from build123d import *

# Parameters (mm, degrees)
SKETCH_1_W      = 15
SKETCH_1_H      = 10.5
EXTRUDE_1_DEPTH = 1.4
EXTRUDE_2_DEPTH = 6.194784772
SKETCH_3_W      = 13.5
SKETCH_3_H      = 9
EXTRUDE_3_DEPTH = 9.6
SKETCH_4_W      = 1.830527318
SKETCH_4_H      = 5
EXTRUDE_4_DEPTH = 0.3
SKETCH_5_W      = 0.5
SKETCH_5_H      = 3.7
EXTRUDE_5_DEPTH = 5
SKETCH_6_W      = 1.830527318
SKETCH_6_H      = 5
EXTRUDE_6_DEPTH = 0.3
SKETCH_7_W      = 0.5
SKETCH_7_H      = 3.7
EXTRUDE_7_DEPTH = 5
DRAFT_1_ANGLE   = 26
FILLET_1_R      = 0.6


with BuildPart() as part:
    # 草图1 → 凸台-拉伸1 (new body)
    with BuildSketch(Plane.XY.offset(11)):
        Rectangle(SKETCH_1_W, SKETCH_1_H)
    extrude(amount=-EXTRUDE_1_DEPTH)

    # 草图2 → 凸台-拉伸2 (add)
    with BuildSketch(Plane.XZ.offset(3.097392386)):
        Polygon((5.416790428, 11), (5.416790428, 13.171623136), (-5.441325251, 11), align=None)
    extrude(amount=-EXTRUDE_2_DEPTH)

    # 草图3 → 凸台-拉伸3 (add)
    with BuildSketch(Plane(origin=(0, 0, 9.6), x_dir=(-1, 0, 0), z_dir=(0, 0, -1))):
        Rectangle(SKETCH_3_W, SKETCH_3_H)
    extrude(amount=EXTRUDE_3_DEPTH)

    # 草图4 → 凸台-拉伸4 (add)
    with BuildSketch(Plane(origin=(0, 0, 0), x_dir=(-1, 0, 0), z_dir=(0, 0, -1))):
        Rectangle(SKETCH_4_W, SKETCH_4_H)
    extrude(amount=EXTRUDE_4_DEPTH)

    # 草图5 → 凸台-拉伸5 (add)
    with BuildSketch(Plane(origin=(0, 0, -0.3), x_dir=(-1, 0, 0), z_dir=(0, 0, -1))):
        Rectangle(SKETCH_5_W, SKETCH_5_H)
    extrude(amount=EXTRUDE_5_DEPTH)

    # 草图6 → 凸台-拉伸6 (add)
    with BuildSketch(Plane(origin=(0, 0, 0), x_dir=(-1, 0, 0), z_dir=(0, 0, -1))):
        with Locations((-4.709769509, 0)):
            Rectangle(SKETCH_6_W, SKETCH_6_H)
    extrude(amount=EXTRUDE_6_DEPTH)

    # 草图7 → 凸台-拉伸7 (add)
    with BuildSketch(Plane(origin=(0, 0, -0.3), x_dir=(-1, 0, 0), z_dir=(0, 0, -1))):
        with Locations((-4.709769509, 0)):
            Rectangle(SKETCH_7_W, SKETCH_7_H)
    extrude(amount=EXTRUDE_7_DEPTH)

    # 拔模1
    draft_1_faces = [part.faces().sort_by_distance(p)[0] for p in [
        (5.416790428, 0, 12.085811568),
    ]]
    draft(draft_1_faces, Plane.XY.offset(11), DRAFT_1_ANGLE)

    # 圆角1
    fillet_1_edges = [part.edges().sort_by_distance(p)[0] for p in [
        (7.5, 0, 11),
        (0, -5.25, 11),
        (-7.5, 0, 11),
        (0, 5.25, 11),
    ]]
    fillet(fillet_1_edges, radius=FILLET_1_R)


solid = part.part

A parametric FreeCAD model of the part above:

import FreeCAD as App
import Part
import Sketcher
from FreeCAD import Vector


def edges_at(feature, points):
    """Names of the edges that pass closest to the given points."""
    edges = feature.Shape.Edges
    near = lambda p: min(range(len(edges)), key=lambda i: edges[i].distToShape(Part.Vertex(*p))[0])
    return sorted({f"Edge{near(p) + 1}" for p in points})


def faces_at(feature, points):
    """Names of the faces that lie closest to the given points."""
    faces = feature.Shape.Faces
    near = lambda p: min(range(len(faces)), key=lambda i: faces[i].distToShape(Part.Vertex(*p))[0])
    return sorted({f"Face{near(p) + 1}" for p in points})


def add_polygon(sketch, points):
    """Adds a closed chain of lines whose ends are joined by coincident constraints."""
    first, n = sketch.GeometryCount, len(points)
    for a, b in zip(points, points[1:] + points[:1]):
        sketch.addGeometry(Part.LineSegment(App.Vector(*a, 0), App.Vector(*b, 0)), False)
    for i in range(n):
        sketch.addConstraint(Sketcher.Constraint("Coincident", first + i, 2, first + (i + 1) % n, 1))

doc = App.newDocument("Part")
body = doc.addObject("PartDesign::Body", "Body")

sketch1 = doc.addObject("Sketcher::SketchObject", "Sketch")
body.addObject(sketch1)
sketch1.AttachmentSupport = (doc.XY_Plane, [""])
sketch1.MapMode = "FlatFace"
sketch1.AttachmentOffset = App.Placement(Vector(0, 0, 11), App.Rotation())
add_polygon(sketch1, [(-8, 5), (-8, -5), (8, -5), (8, 5)])
sketch1.addConstraint([
    Sketcher.Constraint("Vertical", 0),
    Sketcher.Constraint("Horizontal", 1),
    Sketcher.Constraint("Vertical", 2),
    Sketcher.Constraint("Horizontal", 3),
    Sketcher.Constraint("Symmetric", 0, 2, 2, 2, -1, 1),
    Sketcher.Constraint("DistanceX", 1, 1, 1, 2, 15.0),
    Sketcher.Constraint("DistanceY", 0, 2, 0, 1, 10.5),
])
pad1 = doc.addObject("PartDesign::Pad", "Pad")
body.addObject(pad1)
pad1.Profile = sketch1
pad1.Length = 1.4
pad1.Reversed = True

sketch2 = doc.addObject("Sketcher::SketchObject", "Sketch001")
body.addObject(sketch2)
sketch2.AttachmentSupport = (doc.XZ_Plane, [""])
sketch2.MapMode = "FlatFace"
sketch2.AttachmentOffset = App.Placement(Vector(0, 0, 3.097392), App.Rotation())
add_polygon(sketch2, [(5.4, 11), (5.4, 13.2), (-5.4, 11)])
sketch2.addConstraint([
    Sketcher.Constraint("Vertical", 0),
    Sketcher.Constraint("Horizontal", 2),
    Sketcher.Constraint("DistanceY", -1, 1, 1, 2, 11.0),
    Sketcher.Constraint("Distance", 1, 11.073149),
    Sketcher.Constraint("DistanceX", 2, 1, 2, 2, 10.858116),
    Sketcher.Constraint("DistanceX", -1, 1, 0, 2, 5.41679),
])
pad2 = doc.addObject("PartDesign::Pad", "Pad001")
body.addObject(pad2)
pad2.Profile = sketch2
pad2.Length = 6.194785
pad2.Reversed = True

sketch3 = doc.addObject("Sketcher::SketchObject", "Sketch002")
body.addObject(sketch3)
sketch3.AttachmentSupport = (doc.XY_Plane, [""])
sketch3.MapMode = "FlatFace"
sketch3.AttachmentOffset = App.Placement(Vector(0, 0, 9.6), App.Rotation())
add_polygon(sketch3, [(7, 4), (7, -4), (-7, -4), (-7, 4)])
sketch3.addConstraint([
    Sketcher.Constraint("Vertical", 0),
    Sketcher.Constraint("Horizontal", 1),
    Sketcher.Constraint("Vertical", 2),
    Sketcher.Constraint("Horizontal", 3),
    Sketcher.Constraint("Symmetric", 0, 2, 2, 2, -1, 1),
    Sketcher.Constraint("DistanceY", 0, 2, 0, 1, 9.0),
    Sketcher.Constraint("DistanceX", 1, 2, 1, 1, 13.5),
])
pad3 = doc.addObject("PartDesign::Pad", "Pad002")
body.addObject(pad3)
pad3.Profile = sketch3
pad3.Length = 9.6
pad3.Reversed = True

sketch4 = doc.addObject("Sketcher::SketchObject", "Sketch003")
body.addObject(sketch4)
sketch4.AttachmentSupport = (doc.XY_Plane, [""])
sketch4.MapMode = "FlatFace"
add_polygon(sketch4, [(0.9, 2.5), (0.9, -2.5), (-0.9, -2.5), (-0.9, 2.5)])
sketch4.addConstraint([
    Sketcher.Constraint("Vertical", 0),
    Sketcher.Constraint("Horizontal", 1),
    Sketcher.Constraint("Vertical", 2),
    Sketcher.Constraint("Horizontal", 3),
    Sketcher.Constraint("Symmetric", 0, 2, 2, 2, -1, 1),
    Sketcher.Constraint("DistanceY", 0, 2, 0, 1, 5.0),
    Sketcher.Constraint("DistanceX", 1, 2, 1, 1, 1.830527),
])
pad4 = doc.addObject("PartDesign::Pad", "Pad003")
body.addObject(pad4)
pad4.Profile = sketch4
pad4.Length = 0.3
pad4.Reversed = True

sketch5 = doc.addObject("Sketcher::SketchObject", "Sketch004")
body.addObject(sketch5)
sketch5.AttachmentSupport = (doc.XY_Plane, [""])
sketch5.MapMode = "FlatFace"
sketch5.AttachmentOffset = App.Placement(Vector(0, 0, -0.3), App.Rotation())
add_polygon(sketch5, [(0.2, 1.9), (0.2, -1.9), (-0.2, -1.9), (-0.2, 1.9)])
sketch5.addConstraint([
    Sketcher.Constraint("Vertical", 0),
    Sketcher.Constraint("Horizontal", 1),
    Sketcher.Constraint("Vertical", 2),
    Sketcher.Constraint("Horizontal", 3),
    Sketcher.Constraint("Symmetric", 0, 2, 2, 2, -1, 1),
    Sketcher.Constraint("DistanceX", 1, 2, 1, 1, 0.5),
    Sketcher.Constraint("DistanceY", 0, 2, 0, 1, 3.7),
])
pad5 = doc.addObject("PartDesign::Pad", "Pad004")
body.addObject(pad5)
pad5.Profile = sketch5
pad5.Length = 5
pad5.Reversed = True

sketch6 = doc.addObject("Sketcher::SketchObject", "Sketch005")
body.addObject(sketch6)
sketch6.AttachmentSupport = (doc.XY_Plane, [""])
sketch6.MapMode = "FlatFace"
add_polygon(sketch6, [(5.6, 2.5), (5.6, -2.5), (3.8, -2.5), (3.8, 2.5)])
sketch6.addConstraint([
    Sketcher.Constraint("Vertical", 0),
    Sketcher.Constraint("Horizontal", 1),
    Sketcher.Constraint("Vertical", 2),
    Sketcher.Constraint("Horizontal", 3),
    Sketcher.Constraint("DistanceY", 0, 2, 0, 1, 5.0),
    Sketcher.Constraint("DistanceY", 0, 2, -1, 1, 2.5),
    Sketcher.Constraint("DistanceX", 1, 2, 1, 1, 1.830527),
    Sketcher.Constraint("DistanceX", -1, 1, 0, 2, 5.625033),
])
pad6 = doc.addObject("PartDesign::Pad", "Pad005")
body.addObject(pad6)
pad6.Profile = sketch6
pad6.Length = 0.3
pad6.Reversed = True

sketch7 = doc.addObject("Sketcher::SketchObject", "Sketch006")
body.addObject(sketch7)
sketch7.AttachmentSupport = (doc.XY_Plane, [""])
sketch7.MapMode = "FlatFace"
sketch7.AttachmentOffset = App.Placement(Vector(0, 0, -0.3), App.Rotation())
add_polygon(sketch7, [(5, 1.9), (5, -1.9), (4.5, -1.9), (4.5, 1.9)])
sketch7.addConstraint([
    Sketcher.Constraint("Vertical", 0),
    Sketcher.Constraint("Horizontal", 1),
    Sketcher.Constraint("Vertical", 2),
    Sketcher.Constraint("Horizontal", 3),
    Sketcher.Constraint("DistanceX", 1, 2, 1, 1, 0.5),
    Sketcher.Constraint("DistanceY", 0, 2, 0, 1, 3.7),
    Sketcher.Constraint("DistanceY", 0, 2, -1, 1, 1.85),
    Sketcher.Constraint("DistanceX", -1, 1, 0, 2, 4.95977),
])
pad7 = doc.addObject("PartDesign::Pad", "Pad006")
body.addObject(pad7)
pad7.Profile = sketch7
pad7.Length = 5
pad7.Reversed = True
doc.recompute()

datumplane = doc.addObject("PartDesign::Plane", "DatumPlane")
body.addObject(datumplane)
datumplane.AttachmentSupport = (doc.XY_Plane, [""])
datumplane.MapMode = "FlatFace"
datumplane.AttachmentOffset = App.Placement(Vector(0, 0, 11), App.Rotation())
draft = doc.addObject("PartDesign::Draft", "Draft")
body.addObject(draft)
draft.Base = (pad7, faces_at(pad7, [(5.417, 0, 12.086)]))
draft.NeutralPlane = (datumplane, [""])
draft.Angle = 26
draft.Reversed = False
doc.recompute()

fillet = doc.addObject("PartDesign::Fillet", "Fillet")
body.addObject(fillet)
fillet.Base = (draft, edges_at(draft, [
    (7.5, 0, 11),
    (0, -5.25, 11),
    (-7.5, 0, 11),
    (0, 5.25, 11),
]))
fillet.Radius = 0.6

doc.recompute()
